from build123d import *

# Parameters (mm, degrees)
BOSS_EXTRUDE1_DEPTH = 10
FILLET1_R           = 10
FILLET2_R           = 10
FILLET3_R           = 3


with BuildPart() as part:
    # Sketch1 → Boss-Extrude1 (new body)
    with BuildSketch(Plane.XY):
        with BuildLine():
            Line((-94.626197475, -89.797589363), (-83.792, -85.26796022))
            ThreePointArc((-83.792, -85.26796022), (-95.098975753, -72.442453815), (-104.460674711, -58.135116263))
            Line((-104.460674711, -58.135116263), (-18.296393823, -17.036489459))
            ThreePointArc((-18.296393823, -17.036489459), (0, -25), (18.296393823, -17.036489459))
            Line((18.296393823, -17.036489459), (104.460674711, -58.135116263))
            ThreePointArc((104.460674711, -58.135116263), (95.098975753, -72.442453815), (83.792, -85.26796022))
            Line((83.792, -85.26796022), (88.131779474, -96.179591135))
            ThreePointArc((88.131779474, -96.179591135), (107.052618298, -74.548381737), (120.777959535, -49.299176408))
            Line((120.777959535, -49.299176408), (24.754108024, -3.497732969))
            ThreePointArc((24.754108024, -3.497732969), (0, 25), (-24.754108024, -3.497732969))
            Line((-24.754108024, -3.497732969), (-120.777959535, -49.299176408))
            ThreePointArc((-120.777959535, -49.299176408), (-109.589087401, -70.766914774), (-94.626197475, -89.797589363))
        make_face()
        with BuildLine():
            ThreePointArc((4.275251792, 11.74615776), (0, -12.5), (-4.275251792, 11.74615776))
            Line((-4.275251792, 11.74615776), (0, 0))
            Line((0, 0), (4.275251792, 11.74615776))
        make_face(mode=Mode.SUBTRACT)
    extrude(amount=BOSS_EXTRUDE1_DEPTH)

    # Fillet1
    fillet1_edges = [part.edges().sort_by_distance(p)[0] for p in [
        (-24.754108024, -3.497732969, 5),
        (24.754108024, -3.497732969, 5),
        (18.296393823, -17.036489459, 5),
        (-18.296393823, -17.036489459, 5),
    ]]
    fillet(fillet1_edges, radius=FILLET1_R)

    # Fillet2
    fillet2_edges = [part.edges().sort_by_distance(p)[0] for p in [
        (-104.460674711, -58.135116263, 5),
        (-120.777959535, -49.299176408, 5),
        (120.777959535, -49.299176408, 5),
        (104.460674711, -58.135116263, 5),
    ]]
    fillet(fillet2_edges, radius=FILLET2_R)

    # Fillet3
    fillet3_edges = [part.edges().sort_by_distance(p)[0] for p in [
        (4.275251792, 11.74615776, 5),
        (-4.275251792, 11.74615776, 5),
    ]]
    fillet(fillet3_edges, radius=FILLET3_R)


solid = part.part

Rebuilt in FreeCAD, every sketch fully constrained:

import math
import FreeCAD as App
import Part
import Sketcher
Q = App.Units.Quantity


def edges_at(feature, points):
    """Names of the edges that pass closest to the given points."""
    edges = feature.Shape.Edges
    near = lambda p: min(range(len(edges)), key=lambda i: edges[i].distToShape(Part.Vertex(*p))[0])
    return sorted({f"Edge{near(p) + 1}" for p in points})

doc = App.newDocument("Part")
body = doc.addObject("PartDesign::Body", "Body")

# Sketch on XY plane
sketch1 = body.newObject("Sketcher::SketchObject", "Sketch")
sketch1.AttachmentSupport = (doc.getObject("XY_Plane"), [""])
sketch1.MapMode = "FlatFace"
sketch1.addGeometry(Part.LineSegment(App.Vector(-94.626197, -89.797589, 0), App.Vector(-83.792, -85.26796, 0)), False)
sketch1.addGeometry(Part.ArcOfCircle(Part.Circle(App.Vector(0, 0, 0), App.Vector(0, 0, 1), 119.548), math.radians(-150.90291), math.radians(-134.499798)), False)
sketch1.addGeometry(Part.LineSegment(App.Vector(-104.460675, -58.135116, 0), App.Vector(-18.296394, -17.036489, 0)), False)
sketch1.addGeometry(Part.ArcOfCircle(Part.Circle(App.Vector(0, 0, 0), App.Vector(0, 0, 1), 25), math.radians(-137.042195), math.radians(-42.957805)), False)
sketch1.addGeometry(Part.LineSegment(App.Vector(18.296394, -17.036489, 0), App.Vector(104.460675, -58.135116, 0)), False)
sketch1.addGeometry(Part.ArcOfCircle(Part.Circle(App.Vector(0, 0, 0), App.Vector(0, 0, 1), 119.548), math.radians(-45.500202), math.radians(-29.09709)), False)
sketch1.addGeometry(Part.LineSegment(App.Vector(83.792, -85.26796, 0), App.Vector(88.131779, -96.179591, 0)), False)
sketch1.addGeometry(Part.ArcOfCircle(Part.Circle(App.Vector(0, 0, 0), App.Vector(0, 0, 1), 130.452), math.radians(-47.500187), math.radians(-22.204312)), False)
sketch1.addGeometry(Part.LineSegment(App.Vector(120.77796, -49.299176, 0), App.Vector(24.754108, -3.497733, 0)), False)
sketch1.addGeometry(Part.ArcOfCircle(Part.Circle(App.Vector(0, 0, 0), App.Vector(0, 0, 1), 25), math.radians(-8.042599), math.radians(188.042599)), False)
sketch1.addGeometry(Part.LineSegment(App.Vector(-24.754108, -3.497733, 0), App.Vector(-120.77796, -49.299176, 0)), False)
sketch1.addGeometry(Part.ArcOfCircle(Part.Circle(App.Vector(0, 0, 0), App.Vector(0, 0, 1), 130.452), math.radians(-157.795688), math.radians(-136.499783)), False)
sketch1.addGeometry(Part.LineSegment(App.Vector(0, 0, 0), App.Vector(4.275252, 11.746158, 0)), False)
sketch1.addGeometry(Part.ArcOfCircle(Part.Circle(App.Vector(0, 0, 0), App.Vector(0, 0, 1), 12.5), math.radians(110), math.radians(430)), False)
sketch1.addGeometry(Part.LineSegment(App.Vector(-4.275252, 11.746158, 0), App.Vector(0, 0, 0)), False)
sketch1.addConstraint(Sketcher.Constraint("Coincident", 0, 2, 1, 2))
sketch1.addConstraint(Sketcher.Constraint("Coincident", 1, 1, 2, 1))
sketch1.addConstraint(Sketcher.Constraint("Coincident", 2, 2, 3, 1))
sketch1.addConstraint(Sketcher.Constraint("Coincident", 3, 2, 4, 1))
sketch1.addConstraint(Sketcher.Constraint("Coincident", 4, 2, 5, 2))
sketch1.addConstraint(Sketcher.Constraint("Coincident", 5, 1, 6, 1))
sketch1.addConstraint(Sketcher.Constraint("Coincident", 6, 2, 7, 1))
sketch1.addConstraint(Sketcher.Constraint("Coincident", 7, 2, 8, 1))
sketch1.addConstraint(Sketcher.Constraint("Coincident", 8, 2, 9, 1))
sketch1.addConstraint(Sketcher.Constraint("Coincident", 9, 2, 10, 1))
sketch1.addConstraint(Sketcher.Constraint("Coincident", 10, 2, 11, 1))
sketch1.addConstraint(Sketcher.Constraint("Coincident", 11, 2, 0, 1))
sketch1.addConstraint(Sketcher.Constraint("Coincident", 12, 2, 13, 2))
sketch1.addConstraint(Sketcher.Constraint("Coincident", 13, 1, 14, 1))
sketch1.addConstraint(Sketcher.Constraint("Coincident", 14, 2, 12, 1))
sketch1.addConstraint(Sketcher.Constraint("Coincident", 1, 3, -1, 1))
sketch1.addConstraint(Sketcher.Constraint("Coincident", 3, 3, -1, 1))
sketch1.addConstraint(Sketcher.Constraint("Coincident", 5, 3, -1, 1))
sketch1.addConstraint(Sketcher.Constraint("Coincident", 7, 3, -1, 1))
sketch1.addConstraint(Sketcher.Constraint("Coincident", 9, 3, -1, 1))
sketch1.addConstraint(Sketcher.Constraint("Coincident", 11, 3, -1, 1))
sketch1.addConstraint(Sketcher.Constraint("Coincident", 13, 3, -1, 1))
sketch1.addConstraint(Sketcher.Constraint("Coincident", 14, 2, -1, 1))
sketch1.addConstraint(Sketcher.Constraint("Equal", 1, 5))
sketch1.addConstraint(Sketcher.Constraint("Equal", 3, 9))
sketch1.addConstraint(Sketcher.Constraint("Equal", 7, 11))
sketch1.addConstraint(Sketcher.Constraint("Parallel", 4, 8))
sketch1.addConstraint(Sketcher.Constraint("Parallel", 2, 10))
sketch1.addConstraint(Sketcher.Constraint("Horizontal", 2, 2, 3, 2))
sketch1.addConstraint(Sketcher.Constraint("Horizontal", 1, 1, 4, 2))
sketch1.addConstraint(Sketcher.Constraint("Horizontal", 0, 2, 5, 1))
sketch1.addConstraint(Sketcher.Constraint("Horizontal", 8, 2, 9, 2))
sketch1.addConstraint(Sketcher.Constraint("Horizontal", 12, 2, 13, 1))
sketch1.addConstraint(Sketcher.Constraint("Equal", 0, 6))
sketch1.addConstraint(Sketcher.Constraint("Radius", 3, 25.0))
sketch1.addConstraint(Sketcher.Constraint("Radius", 13, 12.5))
sketch1.addConstraint(Sketcher.Constraint("Angle", 12, Q("70 deg")))
sketch1.addConstraint(Sketcher.Constraint("Radius", 1, 119.548))
sketch1.addConstraint(Sketcher.Constraint("Radius", 7, 130.452))
sketch1.addConstraint(Sketcher.Constraint("DistanceX", 0, 2, -1, 1, 83.792))
sketch1.addConstraint(Sketcher.Constraint("DistanceY", 6, 2, 3, 2, 79.143102))
sketch1.addConstraint(Sketcher.Constraint("DistanceY", 11, 2, 2, 2, 72.7611))
sketch1.addConstraint(Sketcher.Constraint("DistanceX", -1, 1, 7, 2, 120.77796))
sketch1.addConstraint(Sketcher.Constraint("DistanceX", -1, 1, 8, 2, 24.754108))
pad1 = body.newObject("PartDesign::Pad", "Pad")
pad1.Profile = sketch1
pad1.Length = 10
doc.recompute()

fillet = body.newObject("PartDesign::Fillet", "Fillet")
fillet.Base = (pad1, edges_at(pad1, [
    (-24.754, -3.498, 5),
    (24.754, -3.498, 5),
    (18.296, -17.036, 5),
    (-18.296, -17.036, 5),
]))
fillet.Radius = 10
doc.recompute()

fillet2 = body.newObject("PartDesign::Fillet", "Fillet001")
fillet2.Base = (fillet, edges_at(fillet, [
    (-104.461, -58.135, 5),
    (-120.778, -49.299, 5),
    (120.778, -49.299, 5),
    (104.461, -58.135, 5),
]))
fillet2.Radius = 10
doc.recompute()

fillet3 = body.newObject("PartDesign::Fillet", "Fillet002")
fillet3.Base = (fillet2, edges_at(fillet2, [(4.275, 11.746, 5), (-4.275, 11.746, 5)]))
fillet3.Radius = 3

doc.recompute()
